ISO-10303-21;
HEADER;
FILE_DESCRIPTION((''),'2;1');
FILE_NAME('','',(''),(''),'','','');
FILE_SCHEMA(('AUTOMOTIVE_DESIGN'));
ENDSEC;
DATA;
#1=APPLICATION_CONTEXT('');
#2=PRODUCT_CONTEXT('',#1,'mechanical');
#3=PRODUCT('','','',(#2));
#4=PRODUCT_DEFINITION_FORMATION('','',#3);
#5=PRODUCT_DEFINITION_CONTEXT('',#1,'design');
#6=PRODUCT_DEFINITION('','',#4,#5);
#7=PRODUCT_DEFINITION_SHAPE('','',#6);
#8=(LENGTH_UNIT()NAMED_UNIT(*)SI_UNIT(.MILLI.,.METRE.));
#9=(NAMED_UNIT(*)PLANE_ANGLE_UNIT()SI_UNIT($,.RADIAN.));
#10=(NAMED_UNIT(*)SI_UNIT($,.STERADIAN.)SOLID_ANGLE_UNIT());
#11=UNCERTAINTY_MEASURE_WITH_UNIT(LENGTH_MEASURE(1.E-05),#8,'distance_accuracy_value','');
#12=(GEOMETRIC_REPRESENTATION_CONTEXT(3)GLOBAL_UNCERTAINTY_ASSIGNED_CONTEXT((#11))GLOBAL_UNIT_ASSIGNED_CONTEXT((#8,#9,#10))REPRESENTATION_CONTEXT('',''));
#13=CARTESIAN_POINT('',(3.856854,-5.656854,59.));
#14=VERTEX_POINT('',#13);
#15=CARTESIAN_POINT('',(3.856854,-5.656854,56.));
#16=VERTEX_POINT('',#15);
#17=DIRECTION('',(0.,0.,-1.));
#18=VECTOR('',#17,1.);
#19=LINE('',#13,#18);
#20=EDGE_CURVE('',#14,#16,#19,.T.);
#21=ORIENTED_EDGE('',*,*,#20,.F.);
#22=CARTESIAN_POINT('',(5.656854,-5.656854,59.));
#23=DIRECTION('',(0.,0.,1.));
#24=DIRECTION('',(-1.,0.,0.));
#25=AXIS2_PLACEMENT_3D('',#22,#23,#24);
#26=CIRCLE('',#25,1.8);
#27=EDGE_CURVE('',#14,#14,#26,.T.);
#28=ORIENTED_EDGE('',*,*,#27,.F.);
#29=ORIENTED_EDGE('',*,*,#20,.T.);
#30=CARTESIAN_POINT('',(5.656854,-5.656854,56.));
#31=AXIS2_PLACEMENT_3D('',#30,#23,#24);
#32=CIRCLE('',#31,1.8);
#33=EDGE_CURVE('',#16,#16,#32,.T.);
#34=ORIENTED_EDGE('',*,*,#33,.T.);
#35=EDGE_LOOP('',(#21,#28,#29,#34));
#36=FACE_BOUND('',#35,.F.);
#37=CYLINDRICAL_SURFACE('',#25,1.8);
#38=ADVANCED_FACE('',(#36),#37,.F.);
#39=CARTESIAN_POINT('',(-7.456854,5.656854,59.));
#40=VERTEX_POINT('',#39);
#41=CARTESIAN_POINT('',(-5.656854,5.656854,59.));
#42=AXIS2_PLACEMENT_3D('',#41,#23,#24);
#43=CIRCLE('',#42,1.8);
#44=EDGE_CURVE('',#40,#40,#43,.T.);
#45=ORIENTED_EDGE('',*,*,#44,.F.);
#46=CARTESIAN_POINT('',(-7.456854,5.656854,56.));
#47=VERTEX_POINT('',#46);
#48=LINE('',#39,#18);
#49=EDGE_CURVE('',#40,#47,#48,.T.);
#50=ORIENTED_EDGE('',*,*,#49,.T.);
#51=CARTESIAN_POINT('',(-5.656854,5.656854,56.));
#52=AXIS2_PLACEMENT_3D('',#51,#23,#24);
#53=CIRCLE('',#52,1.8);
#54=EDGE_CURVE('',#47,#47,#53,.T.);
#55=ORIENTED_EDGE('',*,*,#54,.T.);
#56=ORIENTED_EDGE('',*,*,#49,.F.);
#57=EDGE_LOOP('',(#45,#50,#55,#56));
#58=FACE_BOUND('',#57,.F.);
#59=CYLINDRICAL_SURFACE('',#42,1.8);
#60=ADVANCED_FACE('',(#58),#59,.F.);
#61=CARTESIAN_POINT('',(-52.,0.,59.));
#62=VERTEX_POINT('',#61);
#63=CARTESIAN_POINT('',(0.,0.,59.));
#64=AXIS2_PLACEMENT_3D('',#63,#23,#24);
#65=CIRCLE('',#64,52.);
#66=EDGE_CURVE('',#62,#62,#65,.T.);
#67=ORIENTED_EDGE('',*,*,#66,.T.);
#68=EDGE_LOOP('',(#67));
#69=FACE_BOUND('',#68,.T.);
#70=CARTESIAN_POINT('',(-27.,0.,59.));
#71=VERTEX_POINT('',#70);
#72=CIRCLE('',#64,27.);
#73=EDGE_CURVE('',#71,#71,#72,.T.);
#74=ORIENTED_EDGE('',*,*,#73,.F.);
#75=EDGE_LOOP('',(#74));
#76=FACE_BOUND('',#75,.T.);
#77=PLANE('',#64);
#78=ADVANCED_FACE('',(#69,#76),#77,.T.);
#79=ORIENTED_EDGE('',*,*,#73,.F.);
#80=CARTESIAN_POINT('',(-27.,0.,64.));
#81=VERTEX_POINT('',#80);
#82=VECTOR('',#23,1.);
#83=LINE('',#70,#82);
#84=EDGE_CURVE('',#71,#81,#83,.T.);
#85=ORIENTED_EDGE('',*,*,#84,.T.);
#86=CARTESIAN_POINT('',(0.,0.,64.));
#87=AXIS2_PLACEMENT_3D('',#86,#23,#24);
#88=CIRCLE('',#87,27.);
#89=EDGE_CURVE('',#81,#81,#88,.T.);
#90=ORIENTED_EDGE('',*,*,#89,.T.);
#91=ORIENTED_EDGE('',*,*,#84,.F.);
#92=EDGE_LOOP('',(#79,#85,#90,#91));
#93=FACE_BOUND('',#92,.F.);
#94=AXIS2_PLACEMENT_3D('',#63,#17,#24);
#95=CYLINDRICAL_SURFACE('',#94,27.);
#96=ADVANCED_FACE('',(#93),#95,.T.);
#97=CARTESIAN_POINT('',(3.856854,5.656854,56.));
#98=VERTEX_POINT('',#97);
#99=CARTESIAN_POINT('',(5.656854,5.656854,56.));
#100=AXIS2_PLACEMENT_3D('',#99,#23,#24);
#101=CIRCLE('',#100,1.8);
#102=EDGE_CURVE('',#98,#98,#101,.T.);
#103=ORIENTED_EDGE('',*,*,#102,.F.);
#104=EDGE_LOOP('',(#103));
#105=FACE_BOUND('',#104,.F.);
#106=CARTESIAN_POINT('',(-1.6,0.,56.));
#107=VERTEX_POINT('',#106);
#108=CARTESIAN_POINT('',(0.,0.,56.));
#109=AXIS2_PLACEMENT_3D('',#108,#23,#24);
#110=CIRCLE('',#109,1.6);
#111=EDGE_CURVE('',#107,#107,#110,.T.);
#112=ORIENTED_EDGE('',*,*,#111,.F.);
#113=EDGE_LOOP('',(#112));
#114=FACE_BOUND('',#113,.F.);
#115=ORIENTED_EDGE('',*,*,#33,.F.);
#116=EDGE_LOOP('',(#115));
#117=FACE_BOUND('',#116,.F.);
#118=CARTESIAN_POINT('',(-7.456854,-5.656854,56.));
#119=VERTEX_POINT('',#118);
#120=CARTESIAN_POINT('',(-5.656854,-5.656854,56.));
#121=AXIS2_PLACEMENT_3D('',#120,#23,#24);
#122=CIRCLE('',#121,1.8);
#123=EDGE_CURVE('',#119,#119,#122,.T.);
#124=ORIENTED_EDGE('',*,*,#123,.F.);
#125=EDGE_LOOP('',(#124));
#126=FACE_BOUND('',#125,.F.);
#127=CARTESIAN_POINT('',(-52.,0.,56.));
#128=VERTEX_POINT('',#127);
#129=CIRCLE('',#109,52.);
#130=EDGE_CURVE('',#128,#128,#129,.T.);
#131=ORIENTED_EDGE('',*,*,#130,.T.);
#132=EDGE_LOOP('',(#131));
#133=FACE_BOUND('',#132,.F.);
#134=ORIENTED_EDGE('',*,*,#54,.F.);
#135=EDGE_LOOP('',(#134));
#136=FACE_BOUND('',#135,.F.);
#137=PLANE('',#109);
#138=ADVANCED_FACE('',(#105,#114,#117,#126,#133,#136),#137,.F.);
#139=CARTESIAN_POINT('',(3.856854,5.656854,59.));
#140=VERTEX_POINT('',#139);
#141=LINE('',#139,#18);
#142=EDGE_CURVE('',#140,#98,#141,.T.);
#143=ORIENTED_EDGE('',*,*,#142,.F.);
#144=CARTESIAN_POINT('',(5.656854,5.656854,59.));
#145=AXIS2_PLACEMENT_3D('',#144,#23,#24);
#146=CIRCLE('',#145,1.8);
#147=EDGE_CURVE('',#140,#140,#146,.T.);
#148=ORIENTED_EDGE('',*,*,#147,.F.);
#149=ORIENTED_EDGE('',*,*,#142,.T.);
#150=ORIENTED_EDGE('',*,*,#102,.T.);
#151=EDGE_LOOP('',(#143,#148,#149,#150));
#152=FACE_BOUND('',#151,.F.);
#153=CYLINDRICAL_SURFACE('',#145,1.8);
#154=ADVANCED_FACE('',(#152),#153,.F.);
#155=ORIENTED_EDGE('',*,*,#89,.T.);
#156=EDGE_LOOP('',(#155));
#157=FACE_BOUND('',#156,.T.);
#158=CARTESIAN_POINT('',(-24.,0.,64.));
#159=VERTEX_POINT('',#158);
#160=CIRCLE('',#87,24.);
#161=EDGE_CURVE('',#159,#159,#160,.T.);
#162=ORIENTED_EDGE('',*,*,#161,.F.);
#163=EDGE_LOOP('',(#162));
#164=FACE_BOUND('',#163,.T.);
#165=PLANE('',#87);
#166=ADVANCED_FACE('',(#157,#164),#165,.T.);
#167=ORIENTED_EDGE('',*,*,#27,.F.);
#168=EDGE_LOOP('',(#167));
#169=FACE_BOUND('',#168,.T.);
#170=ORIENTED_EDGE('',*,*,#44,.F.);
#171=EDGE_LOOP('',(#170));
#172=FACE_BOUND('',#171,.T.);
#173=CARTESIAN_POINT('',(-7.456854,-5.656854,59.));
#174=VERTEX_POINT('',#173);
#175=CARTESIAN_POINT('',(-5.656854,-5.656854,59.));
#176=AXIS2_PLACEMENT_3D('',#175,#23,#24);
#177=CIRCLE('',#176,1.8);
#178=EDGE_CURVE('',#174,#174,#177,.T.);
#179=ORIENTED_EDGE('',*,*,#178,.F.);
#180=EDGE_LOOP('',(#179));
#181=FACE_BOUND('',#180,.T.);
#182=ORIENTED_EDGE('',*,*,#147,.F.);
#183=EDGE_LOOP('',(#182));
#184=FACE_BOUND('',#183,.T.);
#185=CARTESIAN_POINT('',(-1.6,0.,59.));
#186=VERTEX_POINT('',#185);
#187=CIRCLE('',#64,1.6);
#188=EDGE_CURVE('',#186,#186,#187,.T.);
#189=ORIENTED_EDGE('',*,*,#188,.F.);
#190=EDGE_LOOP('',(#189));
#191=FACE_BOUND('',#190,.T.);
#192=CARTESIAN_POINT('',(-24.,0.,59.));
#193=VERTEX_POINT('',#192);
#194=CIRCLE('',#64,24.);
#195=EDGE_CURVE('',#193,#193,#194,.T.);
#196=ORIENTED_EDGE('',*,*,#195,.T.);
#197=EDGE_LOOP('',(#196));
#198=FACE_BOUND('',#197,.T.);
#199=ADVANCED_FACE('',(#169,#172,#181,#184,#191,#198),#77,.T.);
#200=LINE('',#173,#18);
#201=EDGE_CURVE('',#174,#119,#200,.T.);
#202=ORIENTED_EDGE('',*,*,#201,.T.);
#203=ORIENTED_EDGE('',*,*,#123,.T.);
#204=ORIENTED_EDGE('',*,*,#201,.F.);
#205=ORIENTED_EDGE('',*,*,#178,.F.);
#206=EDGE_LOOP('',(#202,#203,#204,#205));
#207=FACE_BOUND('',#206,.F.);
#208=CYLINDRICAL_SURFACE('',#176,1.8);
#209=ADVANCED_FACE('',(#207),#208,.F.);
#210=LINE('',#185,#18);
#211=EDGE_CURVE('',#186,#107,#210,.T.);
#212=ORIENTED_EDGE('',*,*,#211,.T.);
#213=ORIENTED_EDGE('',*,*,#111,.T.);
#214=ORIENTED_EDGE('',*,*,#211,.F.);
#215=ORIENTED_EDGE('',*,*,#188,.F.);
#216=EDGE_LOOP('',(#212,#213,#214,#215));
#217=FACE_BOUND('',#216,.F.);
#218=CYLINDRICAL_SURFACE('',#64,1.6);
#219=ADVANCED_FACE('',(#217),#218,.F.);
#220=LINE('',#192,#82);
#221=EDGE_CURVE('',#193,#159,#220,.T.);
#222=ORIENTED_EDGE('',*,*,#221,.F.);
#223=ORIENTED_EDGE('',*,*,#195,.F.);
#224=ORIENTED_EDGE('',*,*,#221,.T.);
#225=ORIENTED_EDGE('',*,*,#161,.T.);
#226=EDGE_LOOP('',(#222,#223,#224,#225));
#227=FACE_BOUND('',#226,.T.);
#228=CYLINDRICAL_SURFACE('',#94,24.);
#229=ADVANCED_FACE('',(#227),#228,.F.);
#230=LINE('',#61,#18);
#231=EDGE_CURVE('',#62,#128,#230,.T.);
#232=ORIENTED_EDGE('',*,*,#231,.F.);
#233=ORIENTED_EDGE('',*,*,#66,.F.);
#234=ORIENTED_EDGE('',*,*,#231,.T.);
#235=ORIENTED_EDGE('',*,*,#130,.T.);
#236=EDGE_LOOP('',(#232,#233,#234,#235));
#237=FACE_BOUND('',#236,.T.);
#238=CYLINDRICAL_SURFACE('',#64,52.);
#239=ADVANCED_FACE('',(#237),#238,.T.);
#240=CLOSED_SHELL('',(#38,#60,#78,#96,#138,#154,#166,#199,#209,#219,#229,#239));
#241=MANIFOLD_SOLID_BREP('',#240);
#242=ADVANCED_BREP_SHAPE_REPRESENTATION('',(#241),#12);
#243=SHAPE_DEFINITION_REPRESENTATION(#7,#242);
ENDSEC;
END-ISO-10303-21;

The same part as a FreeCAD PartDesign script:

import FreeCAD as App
import Part
import Sketcher

doc = App.newDocument("Part")
body = doc.addObject("PartDesign::Body", "Body")

sketch1 = body.newObject("Sketcher::SketchObject", "Sketch")
sketch1.AttachmentSupport = (doc.getObject("XY_Plane"), [""])
sketch1.MapMode = "FlatFace"
sketch1.addGeometry([
    Part.Circle(App.Vector(0, 0, 0), App.Vector(0, 0, 1), 52),
    Part.Circle(App.Vector(0, 0, 0), App.Vector(0, 0, 1), 1.6),
], False)
sketch1.addConstraint([
    Sketcher.Constraint("Coincident", 0, 3, -1, 1),
    Sketcher.Constraint("Coincident", 1, 3, -1, 1),
    Sketcher.Constraint("Diameter", 0, 104.0),
    Sketcher.Constraint("Diameter", 1, 3.2),
])
pad1 = body.newObject("PartDesign::Pad", "Pad")
pad1.Profile = sketch1
pad1.Length = 3
pad1.Reversed = True

sketch2 = body.newObject("Sketcher::SketchObject", "Sketch001")
sketch2.AttachmentSupport = (doc.getObject("XY_Plane"), [""])
sketch2.MapMode = "FlatFace"
sketch2.addGeometry([
    Part.Circle(App.Vector(0, 0, 0), App.Vector(0, 0, 1), 27),
    Part.Circle(App.Vector(0, 0, 0), App.Vector(0, 0, 1), 24),
], False)
sketch2.addConstraint([
    Sketcher.Constraint("Coincident", 0, 3, -1, 1),
    Sketcher.Constraint("Coincident", 1, 3, -1, 1),
    Sketcher.Constraint("Diameter", 0, 54.0),
    Sketcher.Constraint("Diameter", 1, 48.0),
])
pad2 = body.newObject("PartDesign::Pad", "Pad001")
pad2.Profile = sketch2
pad2.Length = 5

sketch3 = body.newObject("Sketcher::SketchObject", "Sketch002")
sketch3.AttachmentSupport = (doc.getObject("XY_Plane"), [""])
sketch3.MapMode = "FlatFace"
sketch3.addGeometry([
    Part.Circle(App.Vector(5.656854, 5.656854, 0), App.Vector(0, 0, 1), 1.8),
    Part.Circle(App.Vector(-5.656854, 5.656854, 0), App.Vector(0, 0, 1), 1.8),
    Part.Circle(App.Vector(-5.656854, -5.656854, 0), App.Vector(0, 0, 1), 1.8),
    Part.Circle(App.Vector(5.656854, -5.656854, 0), App.Vector(0, 0, 1), 1.8),
], False)
sketch3.addConstraint([
    Sketcher.Constraint("Equal", 0, 1),
    Sketcher.Constraint("Equal", 1, 2),
    Sketcher.Constraint("Equal", 2, 3),
    Sketcher.Constraint("Symmetric", 0, 3, 2, 3, -1, 1),
    Sketcher.Constraint("Symmetric", 1, 3, 3, 3, -1, 1),
    Sketcher.Constraint("Symmetric", 0, 3, 1, 3, -2),
    Sketcher.Constraint("Diameter", 0, 3.6),
    Sketcher.Constraint("DistanceX", -1, 1, 0, 3, 5.656854),
    Sketcher.Constraint("DistanceY", -1, 1, 0, 3, 5.656854),
])
pocket1 = body.newObject("PartDesign::Pocket", "Pocket")
pocket1.Profile = sketch3
pocket1.Length = 5
body2 = doc.addObject("PartDesign::Body", "Body001")
doc.recompute()

body.Placement = App.Placement(App.Vector(0, 0, 59), App.Rotation(App.Vector(0, 0, -1), 180))
boolean = body2.newObject("PartDesign::Boolean", "Boolean")
boolean.Type = "Fuse"
boolean.addObjects([body])

doc.recompute()
